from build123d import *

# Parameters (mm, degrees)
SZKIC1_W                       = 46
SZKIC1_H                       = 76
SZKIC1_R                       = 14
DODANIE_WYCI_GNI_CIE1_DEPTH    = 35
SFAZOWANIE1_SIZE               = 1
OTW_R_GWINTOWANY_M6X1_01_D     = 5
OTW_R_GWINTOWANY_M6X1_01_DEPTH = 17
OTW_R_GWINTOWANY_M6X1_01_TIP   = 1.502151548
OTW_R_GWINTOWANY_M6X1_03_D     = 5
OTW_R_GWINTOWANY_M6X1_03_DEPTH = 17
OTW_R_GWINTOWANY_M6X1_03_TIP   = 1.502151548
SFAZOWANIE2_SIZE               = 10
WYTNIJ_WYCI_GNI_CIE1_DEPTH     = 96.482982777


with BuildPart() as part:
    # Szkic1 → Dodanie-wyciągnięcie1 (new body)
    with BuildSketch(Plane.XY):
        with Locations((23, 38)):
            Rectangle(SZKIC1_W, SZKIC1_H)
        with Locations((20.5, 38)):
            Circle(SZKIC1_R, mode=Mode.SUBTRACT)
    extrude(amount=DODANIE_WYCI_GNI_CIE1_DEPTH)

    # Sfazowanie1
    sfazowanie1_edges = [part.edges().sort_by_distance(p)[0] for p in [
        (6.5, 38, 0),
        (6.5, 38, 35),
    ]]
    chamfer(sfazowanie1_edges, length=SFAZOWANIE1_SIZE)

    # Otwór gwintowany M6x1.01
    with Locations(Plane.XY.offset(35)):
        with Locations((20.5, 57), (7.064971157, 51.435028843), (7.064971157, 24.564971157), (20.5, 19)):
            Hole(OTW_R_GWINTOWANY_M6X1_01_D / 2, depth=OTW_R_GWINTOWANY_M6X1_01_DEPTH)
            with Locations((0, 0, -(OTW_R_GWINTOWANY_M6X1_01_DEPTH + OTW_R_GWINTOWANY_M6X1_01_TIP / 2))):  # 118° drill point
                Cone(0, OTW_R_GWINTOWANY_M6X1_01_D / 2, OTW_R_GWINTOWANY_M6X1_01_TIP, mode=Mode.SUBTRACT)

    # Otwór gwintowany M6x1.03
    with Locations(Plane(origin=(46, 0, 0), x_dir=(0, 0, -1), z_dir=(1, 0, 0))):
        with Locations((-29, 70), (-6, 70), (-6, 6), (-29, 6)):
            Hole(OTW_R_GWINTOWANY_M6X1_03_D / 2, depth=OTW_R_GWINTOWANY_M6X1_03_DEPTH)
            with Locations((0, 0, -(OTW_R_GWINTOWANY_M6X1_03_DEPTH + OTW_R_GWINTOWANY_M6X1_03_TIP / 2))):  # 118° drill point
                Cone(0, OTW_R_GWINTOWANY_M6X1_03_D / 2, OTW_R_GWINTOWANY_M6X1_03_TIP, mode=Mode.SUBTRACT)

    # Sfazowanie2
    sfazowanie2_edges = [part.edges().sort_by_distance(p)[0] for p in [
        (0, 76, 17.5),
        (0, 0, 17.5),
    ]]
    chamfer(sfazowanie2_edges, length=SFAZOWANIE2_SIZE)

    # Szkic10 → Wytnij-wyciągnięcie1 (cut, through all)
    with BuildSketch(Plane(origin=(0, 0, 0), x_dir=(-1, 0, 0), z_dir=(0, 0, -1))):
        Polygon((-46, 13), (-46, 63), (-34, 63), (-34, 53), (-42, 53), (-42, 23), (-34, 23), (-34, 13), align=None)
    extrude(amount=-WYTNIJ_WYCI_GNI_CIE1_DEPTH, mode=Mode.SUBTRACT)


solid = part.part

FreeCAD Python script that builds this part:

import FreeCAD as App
import Part
import Sketcher
from FreeCAD import Vector


def edges_at(feature, points):
    """Names of the edges that pass closest to the given points."""
    edges = feature.Shape.Edges
    near = lambda p: min(range(len(edges)), key=lambda i: edges[i].distToShape(Part.Vertex(*p))[0])
    return sorted({f"Edge{near(p) + 1}" for p in points})


def add_polygon(sketch, points):
    """Adds a closed chain of lines whose ends are joined by coincident constraints."""
    first, n = sketch.GeometryCount, len(points)
    for a, b in zip(points, points[1:] + points[:1]):
        sketch.addGeometry(Part.LineSegment(App.Vector(*a, 0), App.Vector(*b, 0)), False)
    for i in range(n):
        sketch.addConstraint(Sketcher.Constraint("Coincident", first + i, 2, first + (i + 1) % n, 1))

doc = App.newDocument("Part")
body = doc.addObject("PartDesign::Body", "Body")

# Sketch on XY plane
sketch1 = body.newObject("Sketcher::SketchObject", "Sketch")
sketch1.AttachmentSupport = (doc.getObject("XY_Plane"), [""])
sketch1.MapMode = "FlatFace"
add_polygon(sketch1, [(0, 76), (0, 0), (46, 0), (46, 76)])  # lines 0-3
sketch1.addGeometry(Part.Circle(Vector(20, 38, 0), Vector(0, 0, 1), 14), False)  # 4
sketch1.addConstraint([
    Sketcher.Constraint("Vertical", 0),
    Sketcher.Constraint("Horizontal", 1),
    Sketcher.Constraint("Vertical", 2),
    Sketcher.Constraint("Horizontal", 3),
    Sketcher.Constraint("Coincident", 0, 2, -1, 1),
    Sketcher.Constraint("Diameter", 4, 28.0),
    Sketcher.Constraint("DistanceX", 1, 1, 1, 2, 46.0),
    Sketcher.Constraint("DistanceY", 0, 2, 0, 1, 76.0),
    Sketcher.Constraint("DistanceY", -1, 1, 4, 3, 38.0),
    Sketcher.Constraint("DistanceX", -1, 1, 4, 3, 20.5),
])
pad1 = body.newObject("PartDesign::Pad", "Pad")
pad1.Profile = sketch1
pad1.Length = 35
doc.recompute()

chamfer = body.newObject("PartDesign::Chamfer", "Chamfer")
chamfer.Base = (pad1, edges_at(pad1, [(6.5, 38, 0), (6.5, 38, 35)]))
chamfer.Size = 1

# Sketch on XY plane
sketch2 = body.newObject("Sketcher::SketchObject", "Sketch001")
sketch2.AttachmentSupport = (doc.getObject("XY_Plane"), [""])
sketch2.MapMode = "FlatFace"
sketch2.AttachmentOffset = App.Placement(Vector(0, 0, 35), App.Rotation())
sketch2.addGeometry([
    Part.Circle(Vector(20.5, 57, 0), Vector(0, 0, 1), 2.5),
    Part.Circle(Vector(7.1, 51.4, 0), Vector(0, 0, 1), 2.5),
    Part.Circle(Vector(7.1, 24.6, 0), Vector(0, 0, 1), 2.5),
    Part.Circle(Vector(20.5, 19, 0), Vector(0, 0, 1), 2.5),
], False)
sketch2.addConstraint([
    Sketcher.Constraint("Equal", 0, 1),
    Sketcher.Constraint("Equal", 1, 2),
    Sketcher.Constraint("Equal", 2, 3),
    Sketcher.Constraint("Vertical", 1, 3, 2, 3),
    Sketcher.Constraint("Vertical", 0, 3, 3, 3),
    Sketcher.Constraint("Diameter", 0, 5.0),
    Sketcher.Constraint("DistanceY", -1, 1, 0, 3, 57.0),
    Sketcher.Constraint("DistanceY", -1, 1, 3, 3, 19.0),
    Sketcher.Constraint("DistanceX", -1, 1, 0, 3, 20.5),
    Sketcher.Constraint("DistanceX", -1, 1, 1, 3, 7.064971),
    Sketcher.Constraint("DistanceY", -1, 1, 1, 3, 51.435029),
    Sketcher.Constraint("DistanceY", -1, 1, 2, 3, 24.564971),
])
doc.recompute()
hole = body.newObject("PartDesign::Hole", "Hole")
hole.Profile = sketch2
hole.ThreadType = "None"
hole.Diameter = 5
hole.DepthType = "Dimension"
hole.Depth = 17
hole.DrillPoint = "Angled"
hole.DrillPointAngle = 118

# Sketch on YZ plane
sketch3 = body.newObject("Sketcher::SketchObject", "Sketch002")
sketch3.AttachmentSupport = (doc.getObject("YZ_Plane"), [""])
sketch3.MapMode = "FlatFace"
sketch3.AttachmentOffset = App.Placement(Vector(0, 0, 46), App.Rotation())
sketch3.addGeometry([
    Part.Circle(Vector(70, 29, 0), Vector(0, 0, 1), 2.5),
    Part.Circle(Vector(70, 6, 0), Vector(0, 0, 1), 2.5),
    Part.Circle(Vector(6, 6, 0), Vector(0, 0, 1), 2.5),
    Part.Circle(Vector(6, 29, 0), Vector(0, 0, 1), 2.5),
], False)
sketch3.addConstraint([
    Sketcher.Constraint("Equal", 0, 1),
    Sketcher.Constraint("Equal", 1, 2),
    Sketcher.Constraint("Equal", 2, 3),
    Sketcher.Constraint("Horizontal", 1, 3, 2, 3),
    Sketcher.Constraint("Horizontal", 0, 3, 3, 3),
    Sketcher.Constraint("Vertical", 0, 3, 1, 3),
    Sketcher.Constraint("Vertical", 2, 3, 3, 3),
    Sketcher.Constraint("Diameter", 0, 5.0),
    Sketcher.Constraint("DistanceX", -1, 1, 0, 3, 70.0),
    Sketcher.Constraint("DistanceY", -1, 1, 0, 3, 29.0),
    Sketcher.Constraint("DistanceY", -1, 1, 1, 3, 6.0),
    Sketcher.Constraint("DistanceX", -1, 1, 2, 3, 6.0),
])
doc.recompute()
hole2 = body.newObject("PartDesign::Hole", "Hole001")
hole2.Profile = sketch3
hole2.ThreadType = "None"
hole2.Diameter = 5
hole2.DepthType = "Dimension"
hole2.Depth = 17
hole2.DrillPoint = "Angled"
hole2.DrillPointAngle = 118
doc.recompute()

chamfer2 = body.newObject("PartDesign::Chamfer", "Chamfer001")
chamfer2.Base = (hole2, edges_at(hole2, [(0, 76, 17.5), (0, 0, 17.5)]))
chamfer2.Size = 10

# Sketch on XY plane
sketch4 = body.newObject("Sketcher::SketchObject", "Sketch003")
sketch4.AttachmentSupport = (doc.getObject("XY_Plane"), [""])
sketch4.MapMode = "FlatFace"
add_polygon(sketch4, [(46, 63), (46, 13), (34, 13), (34, 23), (42, 23), (42, 53), (34, 53), (34, 63)])  # lines 0-7
sketch4.addConstraint([
    Sketcher.Constraint("Vertical", 0),
    Sketcher.Constraint("Horizontal", 1),
    Sketcher.Constraint("Vertical", 2),
    Sketcher.Constraint("Horizontal", 3),
    Sketcher.Constraint("Vertical", 4),
    Sketcher.Constraint("Horizontal", 5),
    Sketcher.Constraint("Vertical", 6),
    Sketcher.Constraint("Horizontal", 7),
    Sketcher.Constraint("Vertical", 2, 2, 5, 2),
    Sketcher.Constraint("Equal", 2, 6),
    Sketcher.Constraint("DistanceX", 1, 2, 1, 1, 12.0),
    Sketcher.Constraint("DistanceX", 3, 1, 3, 2, 8.0),
    Sketcher.Constraint("DistanceY", 0, 2, 0, 1, 50.0),
    Sketcher.Constraint("DistanceY", 2, 1, 2, 2, 10.0),
    Sketcher.Constraint("DistanceX", -1, 1, 0, 2, 46.0),
    Sketcher.Constraint("DistanceY", -1, 1, 0, 2, 13.0),
])
pocket1 = body.newObject("PartDesign::Pocket", "Pocket")
pocket1.Profile = sketch4
pocket1.Type = "ThroughAll"
pocket1.Reversed = True

doc.recompute()
